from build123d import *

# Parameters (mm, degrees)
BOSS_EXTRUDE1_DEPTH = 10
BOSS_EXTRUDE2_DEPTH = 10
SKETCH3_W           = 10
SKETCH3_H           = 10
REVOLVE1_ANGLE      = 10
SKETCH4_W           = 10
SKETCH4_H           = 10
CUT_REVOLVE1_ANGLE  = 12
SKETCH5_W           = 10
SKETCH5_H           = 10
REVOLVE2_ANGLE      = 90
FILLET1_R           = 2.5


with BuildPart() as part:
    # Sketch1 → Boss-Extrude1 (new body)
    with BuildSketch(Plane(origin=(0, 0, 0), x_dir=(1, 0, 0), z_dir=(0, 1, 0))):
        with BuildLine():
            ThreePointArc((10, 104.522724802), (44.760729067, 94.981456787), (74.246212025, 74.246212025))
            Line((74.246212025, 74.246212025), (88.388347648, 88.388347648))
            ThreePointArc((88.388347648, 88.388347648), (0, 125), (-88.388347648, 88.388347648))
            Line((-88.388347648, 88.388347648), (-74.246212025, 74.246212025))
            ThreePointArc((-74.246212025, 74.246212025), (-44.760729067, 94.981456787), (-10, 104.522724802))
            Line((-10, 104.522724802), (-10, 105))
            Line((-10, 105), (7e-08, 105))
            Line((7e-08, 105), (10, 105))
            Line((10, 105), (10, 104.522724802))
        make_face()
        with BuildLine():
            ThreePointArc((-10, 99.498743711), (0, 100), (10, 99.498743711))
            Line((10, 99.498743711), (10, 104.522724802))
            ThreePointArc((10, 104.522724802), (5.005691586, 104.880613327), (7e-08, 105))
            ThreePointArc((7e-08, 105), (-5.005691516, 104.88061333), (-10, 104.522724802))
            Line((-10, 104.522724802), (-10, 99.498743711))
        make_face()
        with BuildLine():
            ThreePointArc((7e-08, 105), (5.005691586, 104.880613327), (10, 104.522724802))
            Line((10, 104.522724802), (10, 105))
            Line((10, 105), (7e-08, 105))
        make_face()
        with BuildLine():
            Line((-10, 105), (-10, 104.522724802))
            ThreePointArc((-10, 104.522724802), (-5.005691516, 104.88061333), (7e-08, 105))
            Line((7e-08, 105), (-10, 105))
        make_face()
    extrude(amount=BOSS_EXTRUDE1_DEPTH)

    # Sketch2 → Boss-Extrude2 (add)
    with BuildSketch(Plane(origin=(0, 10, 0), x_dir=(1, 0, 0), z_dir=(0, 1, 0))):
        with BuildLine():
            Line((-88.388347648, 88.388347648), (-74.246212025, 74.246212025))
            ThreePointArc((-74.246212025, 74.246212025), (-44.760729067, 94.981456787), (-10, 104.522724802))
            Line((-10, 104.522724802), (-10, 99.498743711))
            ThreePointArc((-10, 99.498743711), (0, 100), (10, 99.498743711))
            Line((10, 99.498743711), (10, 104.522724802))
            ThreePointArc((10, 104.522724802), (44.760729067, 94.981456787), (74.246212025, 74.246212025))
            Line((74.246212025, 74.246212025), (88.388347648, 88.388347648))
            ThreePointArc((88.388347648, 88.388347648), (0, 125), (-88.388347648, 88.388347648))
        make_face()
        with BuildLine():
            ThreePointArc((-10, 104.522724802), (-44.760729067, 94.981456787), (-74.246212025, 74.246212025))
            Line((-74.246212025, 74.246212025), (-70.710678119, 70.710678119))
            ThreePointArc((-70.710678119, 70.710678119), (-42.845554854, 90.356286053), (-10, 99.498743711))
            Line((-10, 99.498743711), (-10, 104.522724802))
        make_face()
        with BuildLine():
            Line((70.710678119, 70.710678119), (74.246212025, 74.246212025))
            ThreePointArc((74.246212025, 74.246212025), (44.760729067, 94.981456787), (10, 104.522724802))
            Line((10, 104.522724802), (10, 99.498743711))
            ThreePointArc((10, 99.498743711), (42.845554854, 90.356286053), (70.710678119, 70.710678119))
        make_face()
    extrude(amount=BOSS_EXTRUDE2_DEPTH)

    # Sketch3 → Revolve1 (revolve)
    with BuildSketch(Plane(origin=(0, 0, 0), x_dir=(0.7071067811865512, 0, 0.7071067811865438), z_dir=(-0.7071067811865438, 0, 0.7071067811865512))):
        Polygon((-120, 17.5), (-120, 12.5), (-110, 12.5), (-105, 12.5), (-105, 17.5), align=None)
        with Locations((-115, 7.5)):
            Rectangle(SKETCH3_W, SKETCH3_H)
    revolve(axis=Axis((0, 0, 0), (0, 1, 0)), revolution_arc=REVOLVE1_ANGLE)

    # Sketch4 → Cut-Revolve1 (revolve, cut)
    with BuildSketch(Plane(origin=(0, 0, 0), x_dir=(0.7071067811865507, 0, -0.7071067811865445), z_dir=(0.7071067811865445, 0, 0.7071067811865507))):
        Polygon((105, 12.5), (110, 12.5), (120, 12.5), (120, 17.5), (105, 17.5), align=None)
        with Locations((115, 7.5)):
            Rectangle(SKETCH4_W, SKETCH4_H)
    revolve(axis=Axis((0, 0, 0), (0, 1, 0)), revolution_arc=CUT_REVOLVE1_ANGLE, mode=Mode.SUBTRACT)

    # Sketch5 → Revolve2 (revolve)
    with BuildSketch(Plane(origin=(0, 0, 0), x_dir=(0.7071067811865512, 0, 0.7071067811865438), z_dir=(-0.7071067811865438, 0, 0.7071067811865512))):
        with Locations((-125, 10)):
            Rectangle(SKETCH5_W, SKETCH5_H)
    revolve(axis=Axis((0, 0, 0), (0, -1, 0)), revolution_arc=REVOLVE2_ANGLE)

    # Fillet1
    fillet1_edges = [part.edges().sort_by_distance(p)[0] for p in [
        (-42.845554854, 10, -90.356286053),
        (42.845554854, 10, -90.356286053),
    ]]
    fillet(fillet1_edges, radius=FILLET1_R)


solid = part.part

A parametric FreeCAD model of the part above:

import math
import FreeCAD as App
import Part
import Sketcher

V = App.Vector


def edges_at(feature, points):
    """Names of the edges that pass closest to the given points."""
    edges = feature.Shape.Edges
    near = lambda p: min(range(len(edges)), key=lambda i: edges[i].distToShape(Part.Vertex(*p))[0])
    return sorted({f"Edge{near(p) + 1}" for p in points})


def add_polygon(sketch, points):
    """Adds a closed chain of lines whose ends are joined by coincident constraints."""
    first, n = sketch.GeometryCount, len(points)
    for a, b in zip(points, points[1:] + points[:1]):
        sketch.addGeometry(Part.LineSegment(App.Vector(*a, 0), App.Vector(*b, 0)), False)
    for i in range(n):
        sketch.addConstraint(Sketcher.Constraint("Coincident", first + i, 2, first + (i + 1) % n, 1))

doc = App.newDocument("Part")
body = doc.addObject("PartDesign::Body", "Body")

sketch1 = doc.addObject("Sketcher::SketchObject", "Sketch")
body.addObject(sketch1)
sketch1.AttachmentSupport = (doc.XZ_Plane, [""])
sketch1.MapMode = "FlatFace"
sketch1.addGeometry([
    Part.ArcOfCircle(Part.Circle(V(0, 0, 0), V(0, 0, 1), 105), math.radians(-135), math.radians(-95)),
    Part.LineSegment(V(-10, -105, 0), V(-10, -99, 0)),
    Part.ArcOfCircle(Part.Circle(V(0, 0, 0), V(0, 0, 1), 100), math.radians(-95.74), math.radians(-84.26)),
    Part.LineSegment(V(10, -99, 0), V(10, -105, 0)),
    Part.ArcOfCircle(Part.Circle(V(0, 0, 0), V(0, 0, 1), 105), math.radians(-85), math.radians(-45)),
    Part.LineSegment(V(74, -74, 0), V(88, -88, 0)),
    Part.ArcOfCircle(Part.Circle(V(0, 0, 0), V(0, 0, 1), 125), math.radians(-135), math.radians(-45)),
    Part.LineSegment(V(-88, -88, 0), V(-74, -74, 0)),
], False)
sketch1.addConstraint([
    Sketcher.Constraint("Coincident", 0, 2, 1, 1),
    Sketcher.Constraint("Coincident", 1, 2, 2, 1),
    Sketcher.Constraint("Coincident", 2, 2, 3, 1),
    Sketcher.Constraint("Coincident", 3, 2, 4, 1),
    Sketcher.Constraint("Coincident", 4, 2, 5, 1),
    Sketcher.Constraint("Coincident", 5, 2, 6, 2),
    Sketcher.Constraint("Coincident", 6, 1, 7, 1),
    Sketcher.Constraint("Coincident", 7, 2, 0, 1),
    Sketcher.Constraint("Vertical", 1),
    Sketcher.Constraint("Vertical", 3),
    Sketcher.Constraint("Coincident", 0, 3, -1, 1),
    Sketcher.Constraint("Coincident", 2, 3, -1, 1),
    Sketcher.Constraint("Coincident", 4, 3, -1, 1),
    Sketcher.Constraint("Coincident", 6, 3, -1, 1),
    Sketcher.Constraint("Equal", 0, 4),
    Sketcher.Constraint("Perpendicular", 5, 7),
    Sketcher.Constraint("Horizontal", 1, 2, 2, 2),
    Sketcher.Constraint("Horizontal", 5, 2, 6, 1),
    Sketcher.Constraint("Horizontal", 4, 2, 7, 2),
    Sketcher.Constraint("Radius", 0, 105.0),
    Sketcher.Constraint("Radius", 2, 100.0),
    Sketcher.Constraint("Radius", 6, 125.0),
    Sketcher.Constraint("DistanceX", 0, 2, -1, 1, 10.0),
    Sketcher.Constraint("DistanceY", 2, 2, 4, 2, 25.252532),
])
pad1 = doc.addObject("PartDesign::Pad", "Pad")
body.addObject(pad1)
pad1.Profile = sketch1
pad1.Length = 10
pad1.Reversed = True

sketch2 = doc.addObject("Sketcher::SketchObject", "Sketch001")
body.addObject(sketch2)
sketch2.AttachmentSupport = (doc.XZ_Plane, [""])
sketch2.MapMode = "FlatFace"
sketch2.AttachmentOffset = App.Placement(V(0, 0, -10), App.Rotation())
sketch2.addGeometry([
    Part.LineSegment(V(-88, -88, 0), V(-71, -71, 0)),
    Part.ArcOfCircle(Part.Circle(V(0, 0, 0), V(0, 0, 1), 100), math.radians(-135), math.radians(-96)),
    Part.ArcOfCircle(Part.Circle(V(0, 0, 0), V(0, 0, 1), 100), math.radians(-95.74), math.radians(-84.26)),
    Part.ArcOfCircle(Part.Circle(V(0, 0, 0), V(0, 0, 1), 100), math.radians(-84), math.radians(-45)),
    Part.LineSegment(V(71, -71, 0), V(88, -88, 0)),
    Part.ArcOfCircle(Part.Circle(V(0, 0, 0), V(0, 0, 1), 125), math.radians(-135), math.radians(-45)),
], False)
sketch2.addConstraint([
    Sketcher.Constraint("Coincident", 0, 2, 1, 1),
    Sketcher.Constraint("Tangent", 1, 2, 2, 1),
    Sketcher.Constraint("Tangent", 2, 2, 3, 1),
    Sketcher.Constraint("Coincident", 3, 2, 4, 1),
    Sketcher.Constraint("Coincident", 4, 2, 5, 2),
    Sketcher.Constraint("Coincident", 5, 1, 0, 1),
    Sketcher.Constraint("Coincident", 1, 3, -1, 1),
    Sketcher.Constraint("Coincident", 3, 3, -1, 1),
    Sketcher.Constraint("Coincident", 5, 3, -1, 1),
    Sketcher.Constraint("Perpendicular", 0, 4),
    Sketcher.Constraint("Horizontal", 1, 2, 2, 2),
    Sketcher.Constraint("Horizontal", 0, 2, 3, 2),
    Sketcher.Constraint("Horizontal", 4, 2, 5, 1),
    Sketcher.Constraint("Radius", 1, 100.0),
    Sketcher.Constraint("Radius", 5, 125.0),
    Sketcher.Constraint("DistanceX", 1, 2, -1, 1, 10.0),
    Sketcher.Constraint("DistanceX", 0, 2, -1, 1, 70.710678),
])
pad2 = doc.addObject("PartDesign::Pad", "Pad001")
body.addObject(pad2)
pad2.Profile = sketch2
pad2.Length = 10
pad2.Reversed = True

sketch3 = doc.addObject("Sketcher::SketchObject", "Sketch002")
body.addObject(sketch3)
sketch3.Placement = App.Placement(V(0, 0, 0), App.Rotation(V(0.707106781, 0, 0.707106781), V(0, 0.999999999, 0), V(-0.707106781, 0, 0.707106781), "ZXY"))
add_polygon(sketch3, [(-120, 17.5), (-120, 2.5), (-110, 2.5), (-110, 12.5), (-105, 12.5), (-105, 17.5)])
sketch3.addConstraint([
    Sketcher.Constraint("Vertical", 0),
    Sketcher.Constraint("Horizontal", 1),
    Sketcher.Constraint("Vertical", 2),
    Sketcher.Constraint("Horizontal", 3),
    Sketcher.Constraint("Vertical", 4),
    Sketcher.Constraint("Horizontal", 5),
    Sketcher.Constraint("Equal", 5, 0),
    Sketcher.Constraint("Equal", 1, 2),
    Sketcher.Constraint("DistanceX", 1, 1, 1, 2, 10.0),
    Sketcher.Constraint("DistanceX", 3, 1, 3, 2, 5.0),
    Sketcher.Constraint("DistanceX", 0, 2, -1, 1, 120.0),
    Sketcher.Constraint("DistanceY", -1, 1, 0, 2, 2.5),
])
revolution = doc.addObject("PartDesign::Revolution", "Revolution")
body.addObject(revolution)
revolution.Profile = sketch3
revolution.ReferenceAxis = (sketch3, ["V_Axis"])
revolution.Angle = 10

sketch4 = doc.addObject("Sketcher::SketchObject", "Sketch003")
body.addObject(sketch4)
sketch4.Placement = App.Placement(V(0, 0, 0), App.Rotation(V(0.707106781, 0, -0.707106781), V(0, 0.999999999, 0), V(0.707106781, 0, 0.707106781), "ZXY"))
add_polygon(sketch4, [(105, 12.5), (110, 12.5), (110, 2.5), (120, 2.5), (120, 17.5), (105, 17.5)])
sketch4.addConstraint([
    Sketcher.Constraint("Horizontal", 0),
    Sketcher.Constraint("Vertical", 1),
    Sketcher.Constraint("Horizontal", 2),
    Sketcher.Constraint("Vertical", 3),
    Sketcher.Constraint("Horizontal", 4),
    Sketcher.Constraint("Vertical", 5),
    Sketcher.Constraint("Equal", 2, 1),
    Sketcher.Constraint("Equal", 4, 3),
    Sketcher.Constraint("DistanceX", 0, 1, 0, 2, 5.0),
    Sketcher.Constraint("DistanceX", 2, 1, 2, 2, 10.0),
    Sketcher.Constraint("DistanceX", -1, 1, 0, 2, 110.0),
    Sketcher.Constraint("DistanceY", -1, 1, 0, 2, 12.5),
])
groove = doc.addObject("PartDesign::Groove", "Groove")
body.addObject(groove)
groove.Profile = sketch4
groove.ReferenceAxis = (sketch4, ["V_Axis"])
groove.Angle = 12

sketch5 = doc.addObject("Sketcher::SketchObject", "Sketch004")
body.addObject(sketch5)
sketch5.Placement = App.Placement(V(0, 0, 0), App.Rotation(V(0.707106781, 0, 0.707106781), V(0, 0.999999999, 0), V(-0.707106781, 0, 0.707106781), "ZXY"))
add_polygon(sketch5, [(-130, 15), (-130, 5), (-120, 5), (-120, 15)])
sketch5.addConstraint([
    Sketcher.Constraint("Vertical", 0),
    Sketcher.Constraint("Horizontal", 1),
    Sketcher.Constraint("Vertical", 2),
    Sketcher.Constraint("Horizontal", 3),
    Sketcher.Constraint("Equal", 3, 0),
    Sketcher.Constraint("DistanceX", 1, 1, 1, 2, 10.0),
    Sketcher.Constraint("DistanceX", 0, 2, -1, 1, 130.0),
    Sketcher.Constraint("DistanceY", -1, 1, 0, 2, 5.0),
])
revolution2 = doc.addObject("PartDesign::Revolution", "Revolution001")
body.addObject(revolution2)
revolution2.Profile = sketch5
revolution2.ReferenceAxis = (sketch5, ["V_Axis"])
revolution2.Angle = 90
revolution2.Reversed = True
doc.recompute()

fillet = doc.addObject("PartDesign::Fillet", "Fillet")
body.addObject(fillet)
fillet.Base = (revolution2, edges_at(revolution2, [(-42.846, 10, -90.356), (42.846, 10, -90.356)]))
fillet.Radius = 2.5

doc.recompute()
